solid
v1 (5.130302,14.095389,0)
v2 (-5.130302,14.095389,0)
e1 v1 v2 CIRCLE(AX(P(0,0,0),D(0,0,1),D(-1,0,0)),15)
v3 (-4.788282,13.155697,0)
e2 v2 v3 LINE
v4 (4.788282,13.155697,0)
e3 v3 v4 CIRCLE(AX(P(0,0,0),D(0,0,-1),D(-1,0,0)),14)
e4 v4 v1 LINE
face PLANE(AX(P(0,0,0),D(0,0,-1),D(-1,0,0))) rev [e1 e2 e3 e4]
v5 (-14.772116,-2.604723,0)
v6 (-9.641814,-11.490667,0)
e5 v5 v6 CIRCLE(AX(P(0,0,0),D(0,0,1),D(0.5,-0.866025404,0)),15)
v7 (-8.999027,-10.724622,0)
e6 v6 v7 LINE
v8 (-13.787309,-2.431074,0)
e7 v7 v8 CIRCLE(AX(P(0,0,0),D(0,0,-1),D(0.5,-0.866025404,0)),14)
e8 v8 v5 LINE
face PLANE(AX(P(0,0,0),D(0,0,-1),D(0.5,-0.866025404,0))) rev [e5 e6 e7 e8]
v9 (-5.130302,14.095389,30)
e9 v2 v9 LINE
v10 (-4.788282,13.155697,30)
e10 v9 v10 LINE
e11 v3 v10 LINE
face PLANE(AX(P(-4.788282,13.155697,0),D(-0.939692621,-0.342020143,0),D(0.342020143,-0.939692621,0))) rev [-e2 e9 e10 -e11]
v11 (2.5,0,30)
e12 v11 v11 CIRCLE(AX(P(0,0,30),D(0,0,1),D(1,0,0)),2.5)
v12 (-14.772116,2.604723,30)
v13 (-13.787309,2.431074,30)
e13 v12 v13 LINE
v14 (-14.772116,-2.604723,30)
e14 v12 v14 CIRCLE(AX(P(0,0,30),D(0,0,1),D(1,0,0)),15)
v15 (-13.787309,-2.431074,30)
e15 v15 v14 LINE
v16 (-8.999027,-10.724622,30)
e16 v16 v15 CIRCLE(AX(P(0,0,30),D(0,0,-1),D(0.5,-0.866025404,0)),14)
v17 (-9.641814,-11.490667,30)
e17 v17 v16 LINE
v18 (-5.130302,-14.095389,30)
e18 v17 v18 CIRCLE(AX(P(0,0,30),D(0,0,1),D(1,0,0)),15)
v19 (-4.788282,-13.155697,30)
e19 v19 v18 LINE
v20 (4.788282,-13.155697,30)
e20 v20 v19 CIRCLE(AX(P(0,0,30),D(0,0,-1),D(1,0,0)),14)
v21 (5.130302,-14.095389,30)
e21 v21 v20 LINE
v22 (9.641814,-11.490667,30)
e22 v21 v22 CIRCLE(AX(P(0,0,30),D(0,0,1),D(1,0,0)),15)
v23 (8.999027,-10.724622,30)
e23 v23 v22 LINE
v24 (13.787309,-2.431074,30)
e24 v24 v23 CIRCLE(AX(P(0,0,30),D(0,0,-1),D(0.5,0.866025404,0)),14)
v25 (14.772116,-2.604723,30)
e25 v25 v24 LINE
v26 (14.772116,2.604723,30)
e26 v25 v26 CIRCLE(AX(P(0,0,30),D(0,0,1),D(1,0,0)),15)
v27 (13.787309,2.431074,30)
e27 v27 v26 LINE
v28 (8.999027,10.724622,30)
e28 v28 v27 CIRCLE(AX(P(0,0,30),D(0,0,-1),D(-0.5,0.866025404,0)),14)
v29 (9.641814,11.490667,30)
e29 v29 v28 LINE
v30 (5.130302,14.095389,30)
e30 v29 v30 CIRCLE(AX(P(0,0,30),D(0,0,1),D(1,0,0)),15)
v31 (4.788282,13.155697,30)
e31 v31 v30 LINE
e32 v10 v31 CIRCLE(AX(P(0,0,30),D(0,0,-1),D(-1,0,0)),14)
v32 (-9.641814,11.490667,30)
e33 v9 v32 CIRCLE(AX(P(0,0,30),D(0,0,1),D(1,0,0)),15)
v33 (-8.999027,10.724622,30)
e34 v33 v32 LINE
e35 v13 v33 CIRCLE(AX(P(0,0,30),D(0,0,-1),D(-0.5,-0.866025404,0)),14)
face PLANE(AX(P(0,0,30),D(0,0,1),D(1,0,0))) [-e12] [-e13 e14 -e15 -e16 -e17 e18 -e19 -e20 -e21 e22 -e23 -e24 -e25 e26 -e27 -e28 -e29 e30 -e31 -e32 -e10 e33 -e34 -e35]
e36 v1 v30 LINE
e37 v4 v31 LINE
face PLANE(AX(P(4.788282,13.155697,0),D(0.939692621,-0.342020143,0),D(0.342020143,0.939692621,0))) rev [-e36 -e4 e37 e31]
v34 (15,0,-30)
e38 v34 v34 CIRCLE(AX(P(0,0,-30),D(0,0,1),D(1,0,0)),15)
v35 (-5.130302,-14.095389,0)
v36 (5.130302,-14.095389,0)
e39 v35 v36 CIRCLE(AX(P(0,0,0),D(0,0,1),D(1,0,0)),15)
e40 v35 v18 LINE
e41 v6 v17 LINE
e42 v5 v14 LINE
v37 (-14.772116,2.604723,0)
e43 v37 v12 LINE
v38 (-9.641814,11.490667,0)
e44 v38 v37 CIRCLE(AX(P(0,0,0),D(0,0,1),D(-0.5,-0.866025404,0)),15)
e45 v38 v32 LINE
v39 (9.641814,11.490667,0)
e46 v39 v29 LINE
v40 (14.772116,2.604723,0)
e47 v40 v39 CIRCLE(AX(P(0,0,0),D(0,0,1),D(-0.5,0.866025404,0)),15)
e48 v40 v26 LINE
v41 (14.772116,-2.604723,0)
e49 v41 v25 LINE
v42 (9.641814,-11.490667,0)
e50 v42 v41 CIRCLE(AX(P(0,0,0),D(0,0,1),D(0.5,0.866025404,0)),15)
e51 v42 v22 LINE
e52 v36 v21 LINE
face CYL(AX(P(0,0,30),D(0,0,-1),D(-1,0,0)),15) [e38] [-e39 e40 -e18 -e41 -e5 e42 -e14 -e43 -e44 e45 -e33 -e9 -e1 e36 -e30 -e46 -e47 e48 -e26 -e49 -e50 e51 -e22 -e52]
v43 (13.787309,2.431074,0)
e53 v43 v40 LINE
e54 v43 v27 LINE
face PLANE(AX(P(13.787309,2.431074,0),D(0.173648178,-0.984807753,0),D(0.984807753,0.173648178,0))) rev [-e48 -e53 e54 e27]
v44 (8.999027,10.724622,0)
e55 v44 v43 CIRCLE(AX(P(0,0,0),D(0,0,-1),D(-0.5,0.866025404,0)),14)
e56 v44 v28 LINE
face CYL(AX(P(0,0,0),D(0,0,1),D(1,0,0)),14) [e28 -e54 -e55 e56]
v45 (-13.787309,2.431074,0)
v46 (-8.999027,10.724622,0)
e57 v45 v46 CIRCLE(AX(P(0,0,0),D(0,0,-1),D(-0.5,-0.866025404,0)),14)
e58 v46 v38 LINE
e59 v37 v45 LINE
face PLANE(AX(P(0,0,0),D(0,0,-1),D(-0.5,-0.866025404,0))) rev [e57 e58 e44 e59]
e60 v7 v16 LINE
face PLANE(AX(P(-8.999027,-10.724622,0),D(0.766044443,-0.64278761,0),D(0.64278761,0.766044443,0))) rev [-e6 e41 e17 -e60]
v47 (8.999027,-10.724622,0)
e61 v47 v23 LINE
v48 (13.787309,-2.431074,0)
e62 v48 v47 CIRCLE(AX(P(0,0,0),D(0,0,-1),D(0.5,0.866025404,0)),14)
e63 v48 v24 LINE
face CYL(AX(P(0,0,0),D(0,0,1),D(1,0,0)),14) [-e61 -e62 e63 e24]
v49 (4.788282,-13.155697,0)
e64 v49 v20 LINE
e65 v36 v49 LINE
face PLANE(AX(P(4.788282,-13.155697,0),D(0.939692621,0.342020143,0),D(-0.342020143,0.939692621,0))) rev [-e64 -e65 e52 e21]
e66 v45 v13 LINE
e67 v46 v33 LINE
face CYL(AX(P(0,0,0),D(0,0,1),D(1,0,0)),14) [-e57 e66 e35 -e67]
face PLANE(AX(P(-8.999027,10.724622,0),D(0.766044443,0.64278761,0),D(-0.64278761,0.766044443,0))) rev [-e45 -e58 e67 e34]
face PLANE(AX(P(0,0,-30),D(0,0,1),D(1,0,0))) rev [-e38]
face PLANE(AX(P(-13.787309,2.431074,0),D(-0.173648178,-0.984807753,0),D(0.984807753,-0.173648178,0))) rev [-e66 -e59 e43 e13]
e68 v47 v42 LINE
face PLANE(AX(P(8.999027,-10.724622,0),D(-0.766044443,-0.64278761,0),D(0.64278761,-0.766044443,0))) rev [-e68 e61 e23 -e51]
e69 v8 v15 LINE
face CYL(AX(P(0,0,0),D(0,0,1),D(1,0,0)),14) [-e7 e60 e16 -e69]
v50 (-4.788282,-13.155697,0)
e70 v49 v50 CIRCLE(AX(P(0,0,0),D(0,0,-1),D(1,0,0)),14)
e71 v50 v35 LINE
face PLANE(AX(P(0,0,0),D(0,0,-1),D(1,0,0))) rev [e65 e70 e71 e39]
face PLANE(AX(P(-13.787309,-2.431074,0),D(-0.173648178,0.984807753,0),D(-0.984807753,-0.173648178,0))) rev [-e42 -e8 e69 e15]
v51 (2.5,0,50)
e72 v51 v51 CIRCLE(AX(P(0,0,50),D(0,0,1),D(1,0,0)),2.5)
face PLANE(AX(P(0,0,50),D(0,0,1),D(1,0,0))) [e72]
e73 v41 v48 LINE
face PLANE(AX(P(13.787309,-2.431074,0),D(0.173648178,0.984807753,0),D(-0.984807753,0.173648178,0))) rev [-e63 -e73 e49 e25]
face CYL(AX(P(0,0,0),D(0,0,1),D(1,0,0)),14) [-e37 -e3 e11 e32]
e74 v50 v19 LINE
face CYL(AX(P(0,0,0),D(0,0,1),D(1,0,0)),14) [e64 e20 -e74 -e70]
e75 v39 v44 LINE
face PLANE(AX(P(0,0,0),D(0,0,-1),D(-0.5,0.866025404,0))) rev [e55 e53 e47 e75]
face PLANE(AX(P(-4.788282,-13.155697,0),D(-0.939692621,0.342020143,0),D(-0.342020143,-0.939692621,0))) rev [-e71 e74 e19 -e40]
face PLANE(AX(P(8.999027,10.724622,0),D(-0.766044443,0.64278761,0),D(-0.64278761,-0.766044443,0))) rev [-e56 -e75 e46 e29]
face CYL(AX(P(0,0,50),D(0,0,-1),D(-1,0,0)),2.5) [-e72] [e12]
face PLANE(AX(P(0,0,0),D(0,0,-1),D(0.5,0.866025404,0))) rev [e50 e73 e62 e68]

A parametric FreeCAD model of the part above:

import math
import FreeCAD as App
import Part
import Sketcher
from FreeCAD import Vector
Q = App.Units.Quantity

doc = App.newDocument("Part")
body = doc.addObject("PartDesign::Body", "Body")

sketch1 = body.newObject("Sketcher::SketchObject", "Sketch")
sketch1.AttachmentSupport = (doc.getObject("XY_Plane"), [""])
sketch1.MapMode = "FlatFace"
sketch1.addGeometry(Part.Circle(Vector(0, 0, 0), Vector(0, 0, 1), 15), False)
sketch1.addConstraint(Sketcher.Constraint("Coincident", 0, 3, -1, 1))
sketch1.addConstraint(Sketcher.Constraint("Diameter", 0, 30.0))
pad1 = body.newObject("PartDesign::Pad", "Pad")
pad1.Profile = sketch1
pad1.Length = 60
pad1.Midplane = True

sketch2 = body.newObject("Sketcher::SketchObject", "Sketch001")
sketch2.AttachmentSupport = (doc.getObject("XY_Plane"), [""])
sketch2.MapMode = "FlatFace"
sketch2.AttachmentOffset = App.Placement(Vector(0, 0, 30), App.Rotation())
sketch2.addGeometry(Part.Circle(Vector(0, 0, 0), Vector(0, 0, 1), 2.5), False)
sketch2.addConstraint(Sketcher.Constraint("Coincident", 0, 3, -1, 1))
sketch2.addConstraint(Sketcher.Constraint("Diameter", 0, 5.0))
pad2 = body.newObject("PartDesign::Pad", "Pad001")
pad2.Profile = sketch2
pad2.Length = 20

sketch3 = body.newObject("Sketcher::SketchObject", "Sketch002")
sketch3.AttachmentSupport = (doc.getObject("XY_Plane"), [""])
sketch3.MapMode = "FlatFace"
sketch3.AttachmentOffset = App.Placement(Vector(0, 0, 30), App.Rotation())
sketch3.addGeometry(Part.LineSegment(Vector(-5.1, 14.1, 0), Vector(-4.8, 13.2, 0)), False)
sketch3.addGeometry(Part.ArcOfCircle(Part.Circle(Vector(0, 0, 0), Vector(0, 0, 1), 14), math.radians(70), math.radians(110)), False)
sketch3.addGeometry(Part.LineSegment(Vector(4.8, 13.2, 0), Vector(5.1, 14.1, 0)), False)
sketch3.addGeometry(Part.ArcOfCircle(Part.Circle(Vector(0, 0, 0), Vector(0, 0, 1), 15), math.radians(70), math.radians(110)), False)
sketch3.addConstraint(Sketcher.Constraint("Coincident", 0, 2, 1, 2))
sketch3.addConstraint(Sketcher.Constraint("Coincident", 1, 1, 2, 1))
sketch3.addConstraint(Sketcher.Constraint("Coincident", 2, 2, 3, 1))
sketch3.addConstraint(Sketcher.Constraint("Coincident", 3, 2, 0, 1))
sketch3.addConstraint(Sketcher.Constraint("Coincident", 1, 3, -1, 1))
sketch3.addConstraint(Sketcher.Constraint("Coincident", 3, 3, -1, 1))
sketch3.addConstraint(Sketcher.Constraint("Horizontal", 0, 2, 1, 1))
sketch3.addConstraint(Sketcher.Constraint("Horizontal", 2, 2, 3, 2))
sketch3.addConstraint(Sketcher.Constraint("Radius", 1, 14.0))
sketch3.addConstraint(Sketcher.Constraint("Radius", 3, 15.0))
sketch3.addConstraint(Sketcher.Constraint("Angle", 0, Q("-70 deg")))
sketch3.addConstraint(Sketcher.Constraint("DistanceY", -1, 1, 2, 2, 14.095389))
pocket1 = body.newObject("PartDesign::Pocket", "Pocket")
pocket1.Profile = sketch3
pocket1.Length = 30
doc.recompute()

polarpattern = body.newObject("PartDesign::PolarPattern", "PolarPattern")
polarpattern.Originals = [pocket1]
polarpattern.Axis = (doc.getObject("Z_Axis"), [""])
polarpattern.Angle = 360
polarpattern.Occurrences = 6
body.Tip = polarpattern

doc.recompute()
